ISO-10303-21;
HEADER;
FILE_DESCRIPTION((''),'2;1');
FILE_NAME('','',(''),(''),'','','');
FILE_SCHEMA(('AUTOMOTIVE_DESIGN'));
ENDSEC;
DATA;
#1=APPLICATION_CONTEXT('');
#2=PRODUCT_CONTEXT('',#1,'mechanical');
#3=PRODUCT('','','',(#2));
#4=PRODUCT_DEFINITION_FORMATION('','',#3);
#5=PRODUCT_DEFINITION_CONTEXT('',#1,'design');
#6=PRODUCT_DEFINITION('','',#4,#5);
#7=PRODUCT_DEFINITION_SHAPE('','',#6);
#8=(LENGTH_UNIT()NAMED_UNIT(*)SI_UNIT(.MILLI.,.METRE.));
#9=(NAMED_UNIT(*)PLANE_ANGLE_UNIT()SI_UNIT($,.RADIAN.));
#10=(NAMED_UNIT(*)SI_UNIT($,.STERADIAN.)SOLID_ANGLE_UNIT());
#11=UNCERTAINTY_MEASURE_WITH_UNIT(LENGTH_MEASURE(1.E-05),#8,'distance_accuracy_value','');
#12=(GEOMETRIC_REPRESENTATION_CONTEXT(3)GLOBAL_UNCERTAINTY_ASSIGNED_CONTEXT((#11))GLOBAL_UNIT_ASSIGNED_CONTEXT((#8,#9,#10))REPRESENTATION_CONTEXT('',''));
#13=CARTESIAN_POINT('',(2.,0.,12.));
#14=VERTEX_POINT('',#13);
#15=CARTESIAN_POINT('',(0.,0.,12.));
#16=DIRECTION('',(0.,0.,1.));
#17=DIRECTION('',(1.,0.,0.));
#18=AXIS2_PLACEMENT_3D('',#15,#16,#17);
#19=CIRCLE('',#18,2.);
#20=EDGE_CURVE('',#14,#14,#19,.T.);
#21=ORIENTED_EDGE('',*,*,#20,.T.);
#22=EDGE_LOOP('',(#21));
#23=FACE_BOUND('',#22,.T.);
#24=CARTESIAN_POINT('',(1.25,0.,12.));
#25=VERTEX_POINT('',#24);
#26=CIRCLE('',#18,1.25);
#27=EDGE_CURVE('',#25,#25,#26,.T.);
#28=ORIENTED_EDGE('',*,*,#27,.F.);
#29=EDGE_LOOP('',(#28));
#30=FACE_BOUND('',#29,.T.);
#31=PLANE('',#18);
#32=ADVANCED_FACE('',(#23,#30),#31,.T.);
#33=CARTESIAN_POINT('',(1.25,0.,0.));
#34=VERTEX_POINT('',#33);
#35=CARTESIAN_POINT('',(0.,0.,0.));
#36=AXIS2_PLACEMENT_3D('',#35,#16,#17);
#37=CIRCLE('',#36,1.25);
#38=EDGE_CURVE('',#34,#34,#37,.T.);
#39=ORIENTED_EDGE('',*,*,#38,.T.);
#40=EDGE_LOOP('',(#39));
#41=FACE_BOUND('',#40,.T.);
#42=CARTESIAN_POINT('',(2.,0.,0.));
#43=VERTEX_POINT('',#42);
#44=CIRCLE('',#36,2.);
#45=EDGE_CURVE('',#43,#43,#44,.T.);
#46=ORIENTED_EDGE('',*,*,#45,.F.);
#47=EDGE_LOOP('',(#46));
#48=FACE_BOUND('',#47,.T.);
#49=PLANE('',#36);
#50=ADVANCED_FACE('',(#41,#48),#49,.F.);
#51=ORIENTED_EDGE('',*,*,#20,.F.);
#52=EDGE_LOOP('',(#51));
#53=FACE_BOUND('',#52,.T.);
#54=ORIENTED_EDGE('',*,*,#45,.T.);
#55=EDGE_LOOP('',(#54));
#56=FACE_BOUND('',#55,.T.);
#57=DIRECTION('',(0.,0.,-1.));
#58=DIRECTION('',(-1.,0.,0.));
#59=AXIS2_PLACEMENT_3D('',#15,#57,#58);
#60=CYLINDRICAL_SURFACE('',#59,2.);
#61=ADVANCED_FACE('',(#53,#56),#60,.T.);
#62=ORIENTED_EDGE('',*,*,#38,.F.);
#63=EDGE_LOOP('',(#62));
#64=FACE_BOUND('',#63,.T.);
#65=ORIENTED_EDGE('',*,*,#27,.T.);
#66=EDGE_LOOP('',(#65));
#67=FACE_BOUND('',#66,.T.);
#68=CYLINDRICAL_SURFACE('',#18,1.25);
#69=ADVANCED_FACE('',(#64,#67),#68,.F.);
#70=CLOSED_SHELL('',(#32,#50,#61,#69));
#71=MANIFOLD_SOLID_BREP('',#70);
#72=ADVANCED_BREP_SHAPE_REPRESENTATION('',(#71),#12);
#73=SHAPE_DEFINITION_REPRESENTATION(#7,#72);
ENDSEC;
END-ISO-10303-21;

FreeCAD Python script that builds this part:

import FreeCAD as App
import Part
import Sketcher

V = App.Vector
Q = App.Units.Quantity

doc = App.newDocument("Part")
params = doc.addObject("Spreadsheet::Sheet", "Params")
for row, (alias, value) in enumerate([
    ("sketch1_diameter", "4 mm"),
    ("pad1_length", "12 mm"),
    ("sketch2_diameter", "2.5 mm"),
    ("hole_diameter", "2.5 mm"),
], start=1):
    params.set(f"A{row}", alias)
    params.set(f"B{row}", "=" + value)
    params.setAlias(f"B{row}", alias)

body = doc.addObject("PartDesign::Body", "Body")

# Sketch on XY plane
sketch1 = body.newObject("Sketcher::SketchObject", "Sketch")
sketch1.AttachmentSupport = (doc.getObject("XY_Plane"), [""])
sketch1.MapMode = "FlatFace"
sketch1.addGeometry(Part.Circle(V(0, 0, 0), V(0, 0, 1), 2), False)
sketch1.addConstraint(Sketcher.Constraint("Coincident", 0, 3, -1, 1))
sketch1.addConstraint(Sketcher.Constraint("Diameter", 0, Q("4 mm")))
sketch1.setExpression("Constraints[1]", "Params.sketch1_diameter")
pad1 = body.newObject("PartDesign::Pad", "Pad")
pad1.Profile = sketch1
pad1.setExpression("Length", "Params.pad1_length")

# Sketch on XY plane
sketch2 = body.newObject("Sketcher::SketchObject", "Sketch001")
sketch2.AttachmentSupport = (doc.getObject("XY_Plane"), [""])
sketch2.MapMode = "FlatFace"
sketch2.AttachmentOffset = App.Placement(V(0, 0, 12), App.Rotation())
sketch2.addGeometry(Part.Circle(V(0, 0, 0), V(0, 0, 1), 1.2), False)
sketch2.addConstraint(Sketcher.Constraint("Coincident", 0, 3, -1, 1))
sketch2.addConstraint(Sketcher.Constraint("Diameter", 0, Q("2.5 mm")))
sketch2.setExpression("Constraints[1]", "Params.sketch2_diameter")
doc.recompute()
hole = body.newObject("PartDesign::Hole", "Hole")
hole.Profile = sketch2
hole.ThreadType = "None"
hole.setExpression("Diameter", "Params.hole_diameter")
hole.DepthType = "ThroughAll"

doc.recompute()
